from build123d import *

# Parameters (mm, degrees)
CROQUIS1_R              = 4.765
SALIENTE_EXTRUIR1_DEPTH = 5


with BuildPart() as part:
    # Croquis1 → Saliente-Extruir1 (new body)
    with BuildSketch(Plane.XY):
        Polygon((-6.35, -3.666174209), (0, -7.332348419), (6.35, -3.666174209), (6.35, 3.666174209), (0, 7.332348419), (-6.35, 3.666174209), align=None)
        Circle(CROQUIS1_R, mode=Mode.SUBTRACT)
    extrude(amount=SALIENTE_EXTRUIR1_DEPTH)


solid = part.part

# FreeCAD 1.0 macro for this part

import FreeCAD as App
import Part
import Sketcher
from FreeCAD import Vector
Q = App.Units.Quantity


def add_polygon(sketch, points):
    """Adds a closed chain of lines whose ends are joined by coincident constraints."""
    first, n = sketch.GeometryCount, len(points)
    for a, b in zip(points, points[1:] + points[:1]):
        sketch.addGeometry(Part.LineSegment(App.Vector(*a, 0), App.Vector(*b, 0)), False)
    for i in range(n):
        sketch.addConstraint(Sketcher.Constraint("Coincident", first + i, 2, first + (i + 1) % n, 1))

doc = App.newDocument("Part")
params = doc.addObject("Spreadsheet::Sheet", "Params")
for row, (alias, value) in enumerate([
    ("sketch1_diameter", "9.53 mm"),
    ("pad1_length", "5 mm"),
], start=1):
    params.set(f"A{row}", alias)
    params.set(f"B{row}", "=" + value)
    params.setAlias(f"B{row}", alias)

body = doc.addObject("PartDesign::Body", "Body")

# Sketch on XY plane
sketch1 = body.newObject("Sketcher::SketchObject", "Sketch")
sketch1.AttachmentSupport = (doc.getObject("XY_Plane"), [""])
sketch1.MapMode = "FlatFace"
add_polygon(sketch1, [(-6.3, -3.7), (0, -7.3), (6.3, -3.7), (6.3, 3.7), (0, 7.3), (-6.3, 3.7)])  # lines 0-5
sketch1.addGeometry(Part.Circle(Vector(0, 0, 0), Vector(0, 0, 1), 4.8), False)  # 6
sketch1.addConstraint(Sketcher.Constraint("Vertical", 2))
sketch1.addConstraint(Sketcher.Constraint("Vertical", 5))
sketch1.addConstraint(Sketcher.Constraint("Coincident", 6, 3, -1, 1))
sketch1.addConstraint(Sketcher.Constraint("Symmetric", 0, 2, 3, 2, -1, 1))
sketch1.addConstraint(Sketcher.Constraint("Symmetric", 1, 2, 4, 2, -1, 1))
sketch1.addConstraint(Sketcher.Constraint("PointOnObject", 0, 2, -2))
sketch1.addConstraint(Sketcher.Constraint("Parallel", 0, 3))
sketch1.addConstraint(Sketcher.Constraint("Horizontal", 2, 2, 4, 2))
sketch1.addConstraint(Sketcher.Constraint("Diameter", 6, 9.53))
sketch1.addConstraint(Sketcher.Constraint("Angle", 0, Q("-30 deg")))
sketch1.addConstraint(Sketcher.Constraint("DistanceX", 4, 2, 2, 2, 12.7))
sketch1.addConstraint(Sketcher.Constraint("DistanceY", 2, 1, 2, 2, 7.332348))
sketch1.setExpression("Constraints[14]", "Params.sketch1_diameter")
pad1 = body.newObject("PartDesign::Pad", "Pad")
pad1.Profile = sketch1
pad1.setExpression("Length", "Params.pad1_length")

doc.recompute()
